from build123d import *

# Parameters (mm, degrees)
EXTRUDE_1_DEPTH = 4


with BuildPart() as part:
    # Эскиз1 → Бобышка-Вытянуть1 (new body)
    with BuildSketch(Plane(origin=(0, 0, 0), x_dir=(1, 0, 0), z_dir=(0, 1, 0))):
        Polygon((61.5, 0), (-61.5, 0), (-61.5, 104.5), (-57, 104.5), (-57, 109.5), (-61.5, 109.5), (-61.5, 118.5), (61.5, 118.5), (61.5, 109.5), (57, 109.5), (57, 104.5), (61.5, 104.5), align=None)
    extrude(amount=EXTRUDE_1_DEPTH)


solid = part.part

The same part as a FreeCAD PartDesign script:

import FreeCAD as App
import Part
import Sketcher
from FreeCAD import Vector

doc = App.newDocument("Part")
params = doc.addObject("Spreadsheet::Sheet", "Params")
for row, (alias, value) in enumerate([
    ("sketch1_width", "123 mm"),
    ("sketch1_height", "5 mm"),
    ("sketch1_height2", "9 mm"),
    ("sketch1_width2", "4.5 mm"),
    ("sketch1_height3", "104.5 mm"),
    ("pad1_length", "4 mm"),
], start=1):
    params.set(f"A{row}", alias)
    params.set(f"B{row}", "=" + value)
    params.setAlias(f"B{row}", alias)

body = doc.addObject("PartDesign::Body", "Body")

sketch1 = body.newObject("Sketcher::SketchObject", "Sketch")
sketch1.AttachmentSupport = (doc.getObject("XZ_Plane"), [""])
sketch1.MapMode = "FlatFace"
sketch1.addGeometry([
    Part.LineSegment(Vector(-61.5, 0, 0), Vector(61.5, 0, 0)),
    Part.LineSegment(Vector(61.5, 0, 0), Vector(61.5, -104.5, 0)),
    Part.LineSegment(Vector(61.5, -104.5, 0), Vector(57, -104.5, 0)),
    Part.LineSegment(Vector(57, -104.5, 0), Vector(57, -109.5, 0)),
    Part.LineSegment(Vector(57, -109.5, 0), Vector(61.5, -109.5, 0)),
    Part.LineSegment(Vector(61.5, -109.5, 0), Vector(61.5, -118.5, 0)),
    Part.LineSegment(Vector(61.5, -118.5, 0), Vector(-61.5, -118.5, 0)),
    Part.LineSegment(Vector(-61.5, -118.5, 0), Vector(-61.5, -109.5, 0)),
    Part.LineSegment(Vector(-61.5, -109.5, 0), Vector(-57, -109.5, 0)),
    Part.LineSegment(Vector(-57, -109.5, 0), Vector(-57, -104.5, 0)),
    Part.LineSegment(Vector(-57, -104.5, 0), Vector(-61.5, -104.5, 0)),
    Part.LineSegment(Vector(-61.5, -104.5, 0), Vector(-61.5, 0, 0)),
], False)
sketch1.addConstraint([
    Sketcher.Constraint("Coincident", 0, 2, 1, 1),
    Sketcher.Constraint("Coincident", 1, 2, 2, 1),
    Sketcher.Constraint("Coincident", 2, 2, 3, 1),
    Sketcher.Constraint("Coincident", 3, 2, 4, 1),
    Sketcher.Constraint("Coincident", 4, 2, 5, 1),
    Sketcher.Constraint("Coincident", 5, 2, 6, 1),
    Sketcher.Constraint("Coincident", 6, 2, 7, 1),
    Sketcher.Constraint("Coincident", 7, 2, 8, 1),
    Sketcher.Constraint("Coincident", 8, 2, 9, 1),
    Sketcher.Constraint("Coincident", 9, 2, 10, 1),
    Sketcher.Constraint("Coincident", 10, 2, 11, 1),
    Sketcher.Constraint("Coincident", 11, 2, 0, 1),
    Sketcher.Constraint("Horizontal", 0),
    Sketcher.Constraint("Vertical", 1),
    Sketcher.Constraint("Horizontal", 2),
    Sketcher.Constraint("Vertical", 3),
    Sketcher.Constraint("Horizontal", 4),
    Sketcher.Constraint("Vertical", 5),
    Sketcher.Constraint("Horizontal", 6),
    Sketcher.Constraint("Vertical", 7),
    Sketcher.Constraint("Horizontal", 8),
    Sketcher.Constraint("Vertical", 9),
    Sketcher.Constraint("Horizontal", 10),
    Sketcher.Constraint("Vertical", 11),
    Sketcher.Constraint("Symmetric", 0, 2, 11, 2, -1, 1),
    Sketcher.Constraint("Symmetric", 4, 2, 7, 2, -2),
    Sketcher.Constraint("Symmetric", 2, 2, 9, 2, -2),
    Sketcher.Constraint("Vertical", 1, 2, 4, 2),
    Sketcher.Constraint("DistanceX", 0, 1, 0, 2, 123.0),
    Sketcher.Constraint("DistanceY", 3, 2, 3, 1, 5.0),
    Sketcher.Constraint("DistanceY", 5, 2, 5, 1, 9.0),
    Sketcher.Constraint("DistanceX", 2, 2, 2, 1, 4.5),
    Sketcher.Constraint("DistanceY", 1, 2, 1, 1, 104.5),
])
sketch1.setExpression("Constraints[28]", "Params.sketch1_width")
sketch1.setExpression("Constraints[29]", "Params.sketch1_height")
sketch1.setExpression("Constraints[30]", "Params.sketch1_height2")
sketch1.setExpression("Constraints[31]", "Params.sketch1_width2")
sketch1.setExpression("Constraints[32]", "Params.sketch1_height3")
pad1 = body.newObject("PartDesign::Pad", "Pad")
pad1.Profile = sketch1
pad1.setExpression("Length", "Params.pad1_length")
pad1.Reversed = True

doc.recompute()
